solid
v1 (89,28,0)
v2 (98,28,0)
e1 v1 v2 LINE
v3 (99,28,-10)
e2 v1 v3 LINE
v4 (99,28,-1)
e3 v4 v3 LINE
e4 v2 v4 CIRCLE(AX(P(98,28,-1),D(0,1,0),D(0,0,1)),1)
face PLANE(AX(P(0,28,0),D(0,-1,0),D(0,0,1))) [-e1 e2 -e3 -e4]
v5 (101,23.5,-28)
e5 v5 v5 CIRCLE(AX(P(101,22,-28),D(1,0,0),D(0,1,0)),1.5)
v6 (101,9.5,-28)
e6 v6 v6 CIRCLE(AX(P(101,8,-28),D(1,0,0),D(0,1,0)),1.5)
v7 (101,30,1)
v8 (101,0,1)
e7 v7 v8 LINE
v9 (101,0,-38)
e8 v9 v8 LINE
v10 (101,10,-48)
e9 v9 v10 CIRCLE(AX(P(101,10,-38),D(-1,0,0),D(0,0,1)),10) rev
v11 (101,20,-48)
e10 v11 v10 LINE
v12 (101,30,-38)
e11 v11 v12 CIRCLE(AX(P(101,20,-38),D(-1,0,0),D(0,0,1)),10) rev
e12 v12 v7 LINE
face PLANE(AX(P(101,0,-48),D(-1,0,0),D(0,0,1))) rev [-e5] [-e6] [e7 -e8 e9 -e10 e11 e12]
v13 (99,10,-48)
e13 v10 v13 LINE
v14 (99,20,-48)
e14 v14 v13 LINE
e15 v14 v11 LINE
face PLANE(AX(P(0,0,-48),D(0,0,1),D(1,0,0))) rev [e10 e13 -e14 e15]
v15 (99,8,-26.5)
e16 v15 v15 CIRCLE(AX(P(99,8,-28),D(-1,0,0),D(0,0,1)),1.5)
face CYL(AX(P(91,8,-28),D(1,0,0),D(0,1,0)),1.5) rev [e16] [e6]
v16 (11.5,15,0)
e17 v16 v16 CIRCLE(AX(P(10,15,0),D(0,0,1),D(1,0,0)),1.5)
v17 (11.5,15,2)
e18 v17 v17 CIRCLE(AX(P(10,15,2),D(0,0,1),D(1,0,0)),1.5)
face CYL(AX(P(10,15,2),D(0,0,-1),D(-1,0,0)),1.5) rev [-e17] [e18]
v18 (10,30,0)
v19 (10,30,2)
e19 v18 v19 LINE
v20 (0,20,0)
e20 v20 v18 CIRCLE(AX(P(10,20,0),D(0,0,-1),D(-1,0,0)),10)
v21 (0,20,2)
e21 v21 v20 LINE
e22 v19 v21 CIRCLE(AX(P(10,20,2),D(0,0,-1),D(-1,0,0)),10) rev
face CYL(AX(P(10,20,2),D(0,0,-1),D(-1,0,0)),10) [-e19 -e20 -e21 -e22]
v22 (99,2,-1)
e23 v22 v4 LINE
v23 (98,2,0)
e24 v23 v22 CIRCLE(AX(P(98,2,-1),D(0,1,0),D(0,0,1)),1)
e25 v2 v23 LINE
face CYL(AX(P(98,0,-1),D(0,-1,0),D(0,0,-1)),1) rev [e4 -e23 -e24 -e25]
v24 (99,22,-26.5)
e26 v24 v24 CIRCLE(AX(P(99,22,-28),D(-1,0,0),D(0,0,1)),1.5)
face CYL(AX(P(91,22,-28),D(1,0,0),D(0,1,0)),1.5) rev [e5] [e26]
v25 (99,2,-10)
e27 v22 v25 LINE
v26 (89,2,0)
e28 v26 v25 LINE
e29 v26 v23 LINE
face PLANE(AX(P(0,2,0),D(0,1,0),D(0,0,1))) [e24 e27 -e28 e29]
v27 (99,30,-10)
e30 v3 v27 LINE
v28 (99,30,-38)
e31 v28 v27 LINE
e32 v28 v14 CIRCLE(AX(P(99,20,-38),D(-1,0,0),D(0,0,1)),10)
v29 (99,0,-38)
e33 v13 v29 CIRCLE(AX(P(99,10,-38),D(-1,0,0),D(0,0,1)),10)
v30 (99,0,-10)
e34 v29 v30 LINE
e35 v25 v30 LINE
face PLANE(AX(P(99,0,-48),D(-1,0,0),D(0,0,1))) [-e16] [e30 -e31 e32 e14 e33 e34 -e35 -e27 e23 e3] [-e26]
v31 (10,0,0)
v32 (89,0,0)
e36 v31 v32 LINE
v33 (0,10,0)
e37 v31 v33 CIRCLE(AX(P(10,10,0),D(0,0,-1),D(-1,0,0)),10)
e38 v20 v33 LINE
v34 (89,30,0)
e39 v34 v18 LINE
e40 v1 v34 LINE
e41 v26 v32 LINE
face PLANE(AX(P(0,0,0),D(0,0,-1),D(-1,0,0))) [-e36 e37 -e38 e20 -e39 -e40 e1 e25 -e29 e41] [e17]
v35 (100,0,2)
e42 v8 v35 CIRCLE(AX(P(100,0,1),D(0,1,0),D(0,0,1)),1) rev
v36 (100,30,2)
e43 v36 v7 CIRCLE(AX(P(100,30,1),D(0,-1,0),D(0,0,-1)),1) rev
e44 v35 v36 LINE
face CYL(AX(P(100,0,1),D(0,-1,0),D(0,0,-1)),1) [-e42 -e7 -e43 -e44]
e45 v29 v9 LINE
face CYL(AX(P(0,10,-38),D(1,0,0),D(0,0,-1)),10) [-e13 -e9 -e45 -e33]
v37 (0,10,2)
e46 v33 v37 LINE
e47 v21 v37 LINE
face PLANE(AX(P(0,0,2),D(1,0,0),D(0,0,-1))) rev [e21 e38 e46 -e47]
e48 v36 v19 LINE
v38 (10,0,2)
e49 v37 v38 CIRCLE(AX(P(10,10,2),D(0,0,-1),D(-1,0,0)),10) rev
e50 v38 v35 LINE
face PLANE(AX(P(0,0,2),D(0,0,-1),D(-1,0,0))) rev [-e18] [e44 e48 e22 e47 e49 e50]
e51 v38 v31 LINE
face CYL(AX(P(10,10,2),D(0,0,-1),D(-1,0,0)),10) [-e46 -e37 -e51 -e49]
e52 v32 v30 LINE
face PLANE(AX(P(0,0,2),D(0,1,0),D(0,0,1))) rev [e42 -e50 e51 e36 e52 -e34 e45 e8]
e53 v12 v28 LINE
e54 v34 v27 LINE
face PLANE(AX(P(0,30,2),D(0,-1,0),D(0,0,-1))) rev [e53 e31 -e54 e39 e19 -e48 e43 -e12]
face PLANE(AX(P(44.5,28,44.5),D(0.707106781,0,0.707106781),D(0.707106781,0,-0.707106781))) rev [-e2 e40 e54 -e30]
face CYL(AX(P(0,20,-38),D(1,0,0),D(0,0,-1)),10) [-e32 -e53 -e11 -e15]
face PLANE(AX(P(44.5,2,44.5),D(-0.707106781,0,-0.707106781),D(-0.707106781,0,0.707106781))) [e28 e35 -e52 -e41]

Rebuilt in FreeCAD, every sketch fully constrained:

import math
import FreeCAD as App
import Part
import Sketcher

V = App.Vector
Q = App.Units.Quantity


def edges_at(feature, points):
    """Names of the edges that pass closest to the given points."""
    edges = feature.Shape.Edges
    near = lambda p: min(range(len(edges)), key=lambda i: edges[i].distToShape(Part.Vertex(*p))[0])
    return sorted({f"Edge{near(p) + 1}" for p in points})


def add_polygon(sketch, points):
    """Adds a closed chain of lines whose ends are joined by coincident constraints."""
    first, n = sketch.GeometryCount, len(points)
    for a, b in zip(points, points[1:] + points[:1]):
        sketch.addGeometry(Part.LineSegment(App.Vector(*a, 0), App.Vector(*b, 0)), False)
    for i in range(n):
        sketch.addConstraint(Sketcher.Constraint("Coincident", first + i, 2, first + (i + 1) % n, 1))

doc = App.newDocument("Part")
body = doc.addObject("PartDesign::Body", "Body")

# Sketch on XY plane
sketch1 = doc.addObject("Sketcher::SketchObject", "Sketch")
body.addObject(sketch1)
sketch1.AttachmentSupport = (doc.XY_Plane, [""])
sketch1.MapMode = "FlatFace"
add_polygon(sketch1, [(0, 30), (0, 0), (100, 0), (100, 30)])  # lines 0-3
sketch1.addGeometry(Part.Circle(V(10, 15, 0), V(0, 0, 1), 1.5), False)  # 4
sketch1.addConstraint([
    Sketcher.Constraint("Vertical", 0),
    Sketcher.Constraint("Horizontal", 1),
    Sketcher.Constraint("Vertical", 2),
    Sketcher.Constraint("Horizontal", 3),
    Sketcher.Constraint("Coincident", 0, 2, -1, 1),
    Sketcher.Constraint("Diameter", 4, Q("3 mm")),
    Sketcher.Constraint("DistanceX", 1, 1, 1, 2, Q("100 mm")),
    Sketcher.Constraint("DistanceY", 0, 2, 0, 1, Q("30 mm")),
    Sketcher.Constraint("DistanceX", -1, 1, 4, 3, Q("10 mm")),
    Sketcher.Constraint("DistanceY", -1, 1, 4, 3, Q("15 mm")),
])
pad1 = doc.addObject("PartDesign::Pad", "Pad")
body.addObject(pad1)
pad1.Profile = sketch1
pad1.Length = 2

# Sketch on XY plane
sketch2 = doc.addObject("Sketcher::SketchObject", "Sketch001")
body.addObject(sketch2)
sketch2.AttachmentSupport = (doc.XY_Plane, [""])
sketch2.MapMode = "FlatFace"
sketch2.AttachmentOffset = App.Placement(V(0, 0, 2), App.Rotation())
add_polygon(sketch2, [(101, 0), (101, 30), (99, 30), (99, 0)])  # lines 0-3
sketch2.addConstraint([
    Sketcher.Constraint("Vertical", 0),
    Sketcher.Constraint("Horizontal", 1),
    Sketcher.Constraint("Vertical", 2),
    Sketcher.Constraint("Horizontal", 3),
    Sketcher.Constraint("PointOnObject", 2, 2, -1),
    Sketcher.Constraint("DistanceX", 1, 2, 1, 1, Q("2 mm")),
    Sketcher.Constraint("DistanceY", 0, 1, 0, 2, Q("30 mm")),
    Sketcher.Constraint("DistanceX", -1, 1, 0, 2, Q("101 mm")),
])
pad2 = doc.addObject("PartDesign::Pad", "Pad001")
body.addObject(pad2)
pad2.Profile = sketch2
pad2.Length = 50
pad2.Reversed = True
doc.recompute()

fillet = doc.addObject("PartDesign::Fillet", "Fillet")
body.addObject(fillet)
fillet.Base = (pad2, edges_at(pad2, [(101, 15, 2), (99, 15, 0)]))
fillet.Radius = 1

# Sketch on YZ plane
sketch3 = doc.addObject("Sketcher::SketchObject", "Sketch002")
body.addObject(sketch3)
sketch3.AttachmentSupport = (doc.YZ_Plane, [""])
sketch3.MapMode = "FlatFace"
sketch3.AttachmentOffset = App.Placement(V(0, 0, 101), App.Rotation())
sketch3.addGeometry([
    Part.Circle(V(8, -28, 0), V(0, 0, 1), 1.5),
    Part.Circle(V(22, -28, 0), V(0, 0, 1), 1.5),
], False)
sketch3.addConstraint([
    Sketcher.Constraint("Equal", 0, 1),
    Sketcher.Constraint("Horizontal", 0, 3, 1, 3),
    Sketcher.Constraint("Diameter", 0, Q("3 mm")),
    Sketcher.Constraint("DistanceX", -1, 1, 0, 3, Q("8 mm")),
    Sketcher.Constraint("DistanceY", 0, 3, -1, 1, Q("28 mm")),
    Sketcher.Constraint("DistanceX", -1, 1, 1, 3, Q("22 mm")),
])
pocket1 = doc.addObject("PartDesign::Pocket", "Pocket")
body.addObject(pocket1)
pocket1.Profile = sketch3
pocket1.Length = 10
doc.recompute()

fillet2 = doc.addObject("PartDesign::Fillet", "Fillet001")
body.addObject(fillet2)
fillet2.Base = (pocket1, edges_at(pocket1, [
    (100, 0, -48),
    (100, 30, -48),
    (0, 30, 1),
    (0, 0, 1),
]))
fillet2.Radius = 10

# Sketch on XZ plane
sketch4 = doc.addObject("Sketcher::SketchObject", "Sketch003")
body.addObject(sketch4)
sketch4.AttachmentSupport = (doc.XZ_Plane, [""])
sketch4.MapMode = "FlatFace"
sketch4.addGeometry([
    Part.LineSegment(V(99, -10, 0), V(89, 0, 0)),
    Part.LineSegment(V(89, 0, 0), V(98, 0, 0)),
    Part.ArcOfCircle(Part.Circle(V(98, -1, 0), V(0, 0, 1), 1), math.radians(0), math.radians(90)),
    Part.LineSegment(V(99, -1, 0), V(99, -10, 0)),
], False)
sketch4.addConstraint([
    Sketcher.Constraint("Coincident", 0, 2, 1, 1),
    Sketcher.Constraint("Tangent", 1, 2, 2, 2),
    Sketcher.Constraint("Tangent", 2, 1, 3, 1),
    Sketcher.Constraint("Coincident", 3, 2, 0, 1),
    Sketcher.Constraint("Horizontal", 1),
    Sketcher.Constraint("Vertical", 3),
    Sketcher.Constraint("PointOnObject", 0, 2, -1),
    Sketcher.Constraint("Equal", 1, 3),
    Sketcher.Constraint("Radius", 2, Q("1 mm")),
    Sketcher.Constraint("DistanceX", 1, 1, 1, 2, Q("9 mm")),
    Sketcher.Constraint("DistanceX", -1, 1, 2, 3, Q("98 mm")),
])
pad3 = doc.addObject("PartDesign::Pad", "Pad002")
body.addObject(pad3)
pad3.Profile = sketch4
pad3.Length = 2
pad3.Reversed = True
doc.recompute()

datumplane = doc.addObject("PartDesign::Plane", "DatumPlane")
body.addObject(datumplane)
datumplane.AttachmentSupport = (doc.XZ_Plane, [""])
datumplane.MapMode = "FlatFace"
datumplane.AttachmentOffset = App.Placement(V(0, 0, -15), App.Rotation())
mirrored = doc.addObject("PartDesign::Mirrored", "Mirrored")
body.addObject(mirrored)
mirrored.Originals = [pad3]
mirrored.MirrorPlane = (datumplane, [""])
body.Tip = mirrored

doc.recompute()
